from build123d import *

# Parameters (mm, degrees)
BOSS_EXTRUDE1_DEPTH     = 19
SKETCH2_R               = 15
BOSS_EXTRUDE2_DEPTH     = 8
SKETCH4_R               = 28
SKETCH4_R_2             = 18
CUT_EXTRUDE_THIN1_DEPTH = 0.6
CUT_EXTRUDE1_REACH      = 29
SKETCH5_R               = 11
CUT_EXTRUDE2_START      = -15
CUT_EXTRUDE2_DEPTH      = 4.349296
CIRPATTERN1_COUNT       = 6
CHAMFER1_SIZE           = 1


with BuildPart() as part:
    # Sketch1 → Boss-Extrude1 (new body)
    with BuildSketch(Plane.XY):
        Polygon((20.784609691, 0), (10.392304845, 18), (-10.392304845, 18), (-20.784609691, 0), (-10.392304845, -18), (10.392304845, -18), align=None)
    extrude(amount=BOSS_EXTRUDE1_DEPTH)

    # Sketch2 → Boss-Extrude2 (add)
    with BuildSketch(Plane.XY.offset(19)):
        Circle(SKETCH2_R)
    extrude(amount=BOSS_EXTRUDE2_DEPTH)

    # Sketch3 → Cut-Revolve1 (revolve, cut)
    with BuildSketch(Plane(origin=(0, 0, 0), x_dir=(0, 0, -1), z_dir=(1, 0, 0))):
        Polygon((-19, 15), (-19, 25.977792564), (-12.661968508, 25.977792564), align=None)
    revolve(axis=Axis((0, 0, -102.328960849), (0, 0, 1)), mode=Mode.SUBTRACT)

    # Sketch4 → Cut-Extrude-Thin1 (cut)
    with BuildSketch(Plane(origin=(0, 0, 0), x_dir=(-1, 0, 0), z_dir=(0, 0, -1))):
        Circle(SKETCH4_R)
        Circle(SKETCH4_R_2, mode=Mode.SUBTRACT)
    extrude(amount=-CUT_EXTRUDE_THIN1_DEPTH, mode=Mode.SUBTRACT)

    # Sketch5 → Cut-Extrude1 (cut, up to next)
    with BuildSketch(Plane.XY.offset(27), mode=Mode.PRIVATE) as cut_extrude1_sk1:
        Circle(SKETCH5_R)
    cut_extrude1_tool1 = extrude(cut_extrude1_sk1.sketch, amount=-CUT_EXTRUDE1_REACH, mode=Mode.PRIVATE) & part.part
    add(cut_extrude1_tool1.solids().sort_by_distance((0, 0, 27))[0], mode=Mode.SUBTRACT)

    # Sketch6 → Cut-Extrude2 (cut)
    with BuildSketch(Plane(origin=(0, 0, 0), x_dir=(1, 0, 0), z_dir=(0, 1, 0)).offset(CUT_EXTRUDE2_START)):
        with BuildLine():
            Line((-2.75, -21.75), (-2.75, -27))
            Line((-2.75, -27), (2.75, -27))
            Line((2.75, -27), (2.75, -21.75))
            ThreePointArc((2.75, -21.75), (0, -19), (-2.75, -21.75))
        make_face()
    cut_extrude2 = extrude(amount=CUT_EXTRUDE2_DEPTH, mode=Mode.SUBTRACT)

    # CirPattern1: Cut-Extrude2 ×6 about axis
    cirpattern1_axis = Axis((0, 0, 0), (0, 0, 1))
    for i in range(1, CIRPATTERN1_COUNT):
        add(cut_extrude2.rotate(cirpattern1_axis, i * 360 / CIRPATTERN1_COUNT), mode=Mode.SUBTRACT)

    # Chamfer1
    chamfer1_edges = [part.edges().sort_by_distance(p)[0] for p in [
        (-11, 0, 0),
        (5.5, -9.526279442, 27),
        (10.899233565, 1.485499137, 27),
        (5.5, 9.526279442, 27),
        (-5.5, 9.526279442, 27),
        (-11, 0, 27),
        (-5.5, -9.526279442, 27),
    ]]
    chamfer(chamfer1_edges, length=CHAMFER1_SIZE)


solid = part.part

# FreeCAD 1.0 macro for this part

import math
import FreeCAD as App
import Part
import Sketcher

V = App.Vector
Q = App.Units.Quantity


def edges_at(feature, points):
    """Names of the edges that pass closest to the given points."""
    edges = feature.Shape.Edges
    near = lambda p: min(range(len(edges)), key=lambda i: edges[i].distToShape(Part.Vertex(*p))[0])
    return sorted({f"Edge{near(p) + 1}" for p in points})


def add_polygon(sketch, points):
    """Adds a closed chain of lines whose ends are joined by coincident constraints."""
    first, n = sketch.GeometryCount, len(points)
    for a, b in zip(points, points[1:] + points[:1]):
        sketch.addGeometry(Part.LineSegment(App.Vector(*a, 0), App.Vector(*b, 0)), False)
    for i in range(n):
        sketch.addConstraint(Sketcher.Constraint("Coincident", first + i, 2, first + (i + 1) % n, 1))

doc = App.newDocument("Part")
body = doc.addObject("PartDesign::Body", "Body")

sketch1 = doc.addObject("Sketcher::SketchObject", "Sketch")
body.addObject(sketch1)
sketch1.AttachmentSupport = (doc.XY_Plane, [""])
sketch1.MapMode = "FlatFace"
add_polygon(sketch1, [(21, 0), (10, 18), (-10, 18), (-21, 0), (-10, -18), (10, -18)])
sketch1.addConstraint(Sketcher.Constraint("Horizontal", 1))
sketch1.addConstraint(Sketcher.Constraint("Horizontal", 4))
sketch1.addConstraint(Sketcher.Constraint("Symmetric", 0, 2, 3, 2, -1, 1))
sketch1.addConstraint(Sketcher.Constraint("Symmetric", 2, 2, 5, 2, -1, 1))
sketch1.addConstraint(Sketcher.Constraint("PointOnObject", 2, 2, -1))
sketch1.addConstraint(Sketcher.Constraint("Parallel", 2, 5))
sketch1.addConstraint(Sketcher.Constraint("Vertical", 1, 2, 3, 2))
sketch1.addConstraint(Sketcher.Constraint("Angle", 0, Q("120 deg")))
sketch1.addConstraint(Sketcher.Constraint("DistanceY", -1, 1, 0, 2, Q("18 mm")))
sketch1.addConstraint(Sketcher.Constraint("DistanceX", 1, 2, 1, 1, Q("20.78461 mm")))
pad1 = doc.addObject("PartDesign::Pad", "Pad")
body.addObject(pad1)
pad1.Profile = sketch1
pad1.Length = 19

sketch2 = doc.addObject("Sketcher::SketchObject", "Sketch001")
body.addObject(sketch2)
sketch2.AttachmentSupport = (doc.XY_Plane, [""])
sketch2.MapMode = "FlatFace"
sketch2.AttachmentOffset = App.Placement(V(0, 0, 19), App.Rotation())
sketch2.addGeometry(Part.Circle(V(0, 0, 0), V(0, 0, 1), 15), False)
sketch2.addConstraint(Sketcher.Constraint("Coincident", 0, 3, -1, 1))
sketch2.addConstraint(Sketcher.Constraint("Diameter", 0, Q("30 mm")))
pad2 = doc.addObject("PartDesign::Pad", "Pad001")
body.addObject(pad2)
pad2.Profile = sketch2
pad2.Length = 8

sketch3 = doc.addObject("Sketcher::SketchObject", "Sketch002")
body.addObject(sketch3)
sketch3.AttachmentSupport = (doc.YZ_Plane, [""])
sketch3.MapMode = "FlatFace"
add_polygon(sketch3, [(26, 19), (15, 19), (26, 13)])
sketch3.addConstraint(Sketcher.Constraint("Horizontal", 0))
sketch3.addConstraint(Sketcher.Constraint("Vertical", 2))
sketch3.addConstraint(Sketcher.Constraint("Angle", 1, Q("-30 deg")))
sketch3.addConstraint(Sketcher.Constraint("DistanceX", -1, 1, 0, 2, Q("15 mm")))
sketch3.addConstraint(Sketcher.Constraint("DistanceY", -1, 1, 0, 2, Q("19 mm")))
sketch3.addConstraint(Sketcher.Constraint("DistanceY", 2, 1, 2, 2, Q("6.338031 mm")))
groove = doc.addObject("PartDesign::Groove", "Groove")
body.addObject(groove)
groove.Profile = sketch3
groove.ReferenceAxis = (sketch3, ["V_Axis"])
groove.Angle = 360

sketch4 = doc.addObject("Sketcher::SketchObject", "Sketch003")
body.addObject(sketch4)
sketch4.AttachmentSupport = (doc.XY_Plane, [""])
sketch4.MapMode = "FlatFace"
sketch4.addGeometry(Part.Circle(V(0, 0, 0), V(0, 0, 1), 28), False)
sketch4.addGeometry(Part.Circle(V(0, 0, 0), V(0, 0, 1), 18), False)
sketch4.addConstraint(Sketcher.Constraint("Coincident", 0, 3, -1, 1))
sketch4.addConstraint(Sketcher.Constraint("Coincident", 1, 3, -1, 1))
sketch4.addConstraint(Sketcher.Constraint("Diameter", 0, Q("56 mm")))
sketch4.addConstraint(Sketcher.Constraint("Diameter", 1, Q("36 mm")))
pocket1 = doc.addObject("PartDesign::Pocket", "Pocket")
body.addObject(pocket1)
pocket1.Profile = sketch4
pocket1.Length = 0.6
pocket1.Reversed = True

sketch5 = doc.addObject("Sketcher::SketchObject", "Sketch004")
body.addObject(sketch5)
sketch5.AttachmentSupport = (doc.XY_Plane, [""])
sketch5.MapMode = "FlatFace"
sketch5.AttachmentOffset = App.Placement(V(0, 0, 27), App.Rotation())
sketch5.addGeometry(Part.Circle(V(0, 0, 0), V(0, 0, 1), 11), False)
sketch5.addConstraint(Sketcher.Constraint("Coincident", 0, 3, -1, 1))
sketch5.addConstraint(Sketcher.Constraint("Diameter", 0, Q("22 mm")))
pocket2 = doc.addObject("PartDesign::Pocket", "Pocket001")
body.addObject(pocket2)
pocket2.Profile = sketch5
pocket2.Type = "UpToFirst"

sketch6 = doc.addObject("Sketcher::SketchObject", "Sketch005")
body.addObject(sketch6)
sketch6.AttachmentSupport = (doc.XZ_Plane, [""])
sketch6.MapMode = "FlatFace"
sketch6.AttachmentOffset = App.Placement(V(0, 0, 15), App.Rotation())
sketch6.addGeometry(Part.LineSegment(V(-2.8, 21.8, 0), V(-2.8, 27, 0)), False)
sketch6.addGeometry(Part.LineSegment(V(-2.8, 27, 0), V(2.8, 27, 0)), False)
sketch6.addGeometry(Part.LineSegment(V(2.8, 27, 0), V(2.8, 21.8, 0)), False)
sketch6.addGeometry(Part.ArcOfCircle(Part.Circle(V(0, 21.8, 0), V(0, 0, 1), 2.8), math.radians(180), math.radians(360)), False)
sketch6.addConstraint(Sketcher.Constraint("Coincident", 0, 2, 1, 1))
sketch6.addConstraint(Sketcher.Constraint("Coincident", 1, 2, 2, 1))
sketch6.addConstraint(Sketcher.Constraint("Tangent", 2, 2, 3, 2))
sketch6.addConstraint(Sketcher.Constraint("Tangent", 3, 1, 0, 1))
sketch6.addConstraint(Sketcher.Constraint("Vertical", 0))
sketch6.addConstraint(Sketcher.Constraint("Horizontal", 1))
sketch6.addConstraint(Sketcher.Constraint("Vertical", 2))
sketch6.addConstraint(Sketcher.Constraint("PointOnObject", 3, 3, -2))
sketch6.addConstraint(Sketcher.Constraint("Radius", 3, Q("2.75 mm")))
sketch6.addConstraint(Sketcher.Constraint("DistanceY", -1, 1, 0, 2, Q("27 mm")))
sketch6.addConstraint(Sketcher.Constraint("DistanceY", 0, 1, 0, 2, Q("5.25 mm")))
pocket3 = doc.addObject("PartDesign::Pocket", "Pocket002")
body.addObject(pocket3)
pocket3.Profile = sketch6
pocket3.Length = 4.349296
doc.recompute()

polarpattern = doc.addObject("PartDesign::PolarPattern", "PolarPattern")
body.addObject(polarpattern)
polarpattern.Originals = [pocket3]
polarpattern.Axis = (doc.Z_Axis, [""])
polarpattern.Angle = 360
polarpattern.Occurrences = 6
body.Tip = polarpattern
doc.recompute()

chamfer = doc.addObject("PartDesign::Chamfer", "Chamfer")
body.addObject(chamfer)
chamfer.Base = (polarpattern, edges_at(polarpattern, [
    (-11, 0, 0),
    (5.5, -9.526, 27),
    (10.899, 1.485, 27),
    (5.5, 9.526, 27),
    (-5.5, 9.526, 27),
    (-11, 0, 27),
    (-5.5, -9.526, 27),
]))
chamfer.Size = 1

doc.recompute()
